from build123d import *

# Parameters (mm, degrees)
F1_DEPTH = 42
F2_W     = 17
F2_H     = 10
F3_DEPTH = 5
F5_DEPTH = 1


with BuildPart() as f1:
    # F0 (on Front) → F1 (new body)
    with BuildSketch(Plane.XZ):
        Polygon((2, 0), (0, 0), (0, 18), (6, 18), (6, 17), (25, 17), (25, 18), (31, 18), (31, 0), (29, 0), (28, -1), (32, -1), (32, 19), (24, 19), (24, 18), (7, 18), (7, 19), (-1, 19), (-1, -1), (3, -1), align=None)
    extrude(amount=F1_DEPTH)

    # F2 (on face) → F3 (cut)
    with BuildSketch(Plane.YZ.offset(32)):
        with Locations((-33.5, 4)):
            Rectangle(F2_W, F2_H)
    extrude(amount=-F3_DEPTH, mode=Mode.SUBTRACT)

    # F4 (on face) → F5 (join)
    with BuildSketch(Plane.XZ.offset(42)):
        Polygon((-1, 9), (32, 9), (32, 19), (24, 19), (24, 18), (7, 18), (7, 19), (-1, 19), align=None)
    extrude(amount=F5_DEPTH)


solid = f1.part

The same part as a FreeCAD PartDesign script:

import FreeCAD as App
import Part
import Sketcher

V = App.Vector
Q = App.Units.Quantity


def add_polygon(sketch, points):
    """Adds a closed chain of lines whose ends are joined by coincident constraints."""
    first, n = sketch.GeometryCount, len(points)
    for a, b in zip(points, points[1:] + points[:1]):
        sketch.addGeometry(Part.LineSegment(App.Vector(*a, 0), App.Vector(*b, 0)), False)
    for i in range(n):
        sketch.addConstraint(Sketcher.Constraint("Coincident", first + i, 2, first + (i + 1) % n, 1))

doc = App.newDocument("Part")
body = doc.addObject("PartDesign::Body", "Body")

sketch1 = body.newObject("Sketcher::SketchObject", "Sketch")
sketch1.AttachmentSupport = (doc.getObject("XZ_Plane"), [""])
sketch1.MapMode = "FlatFace"
add_polygon(sketch1, [(2, 0), (0, 0), (0, 18), (6, 18), (6, 17), (25, 17), (25, 18), (31, 18), (31, 0), (29, 0), (28, -1), (32, -1), (32, 19), (24, 19), (24, 18), (7, 18), (7, 19), (-1, 19), (-1, -1), (3, -1)])
sketch1.addConstraint([
    Sketcher.Constraint("Horizontal", 0),
    Sketcher.Constraint("Vertical", 1),
    Sketcher.Constraint("Horizontal", 2),
    Sketcher.Constraint("Vertical", 3),
    Sketcher.Constraint("Horizontal", 4),
    Sketcher.Constraint("Vertical", 5),
    Sketcher.Constraint("Horizontal", 6),
    Sketcher.Constraint("Vertical", 7),
    Sketcher.Constraint("Horizontal", 8),
    Sketcher.Constraint("Horizontal", 10),
    Sketcher.Constraint("Vertical", 11),
    Sketcher.Constraint("Horizontal", 12),
    Sketcher.Constraint("Vertical", 13),
    Sketcher.Constraint("Horizontal", 14),
    Sketcher.Constraint("Vertical", 15),
    Sketcher.Constraint("Horizontal", 16),
    Sketcher.Constraint("Vertical", 17),
    Sketcher.Constraint("Horizontal", 18),
    Sketcher.Constraint("Coincident", 0, 2, -1, 1),
    Sketcher.Constraint("PointOnObject", 7, 2, -1),
    Sketcher.Constraint("Perpendicular", 9, 19),
    Sketcher.Constraint("Horizontal", 2, 2, 5, 2),
    Sketcher.Constraint("Horizontal", 6, 2, 13, 2),
    Sketcher.Constraint("Horizontal", 12, 2, 15, 2),
    Sketcher.Constraint("Horizontal", 10, 2, 17, 2),
    Sketcher.Constraint("Equal", 2, 6),
    Sketcher.Constraint("Equal", 0, 8),
    Sketcher.Constraint("Equal", 12, 16),
    Sketcher.Constraint("Equal", 10, 18),
    Sketcher.Constraint("Equal", 5, 13),
    Sketcher.Constraint("Equal", 9, 19),
    Sketcher.Constraint("DistanceX", 0, 2, 0, 1, Q("2 mm")),
    Sketcher.Constraint("DistanceX", 2, 1, 2, 2, Q("6 mm")),
    Sketcher.Constraint("DistanceX", 4, 1, 4, 2, Q("19 mm")),
    Sketcher.Constraint("DistanceX", 10, 1, 10, 2, Q("4 mm")),
    Sketcher.Constraint("DistanceX", 12, 2, 12, 1, Q("8 mm")),
    Sketcher.Constraint("DistanceX", 14, 2, 14, 1, Q("17 mm")),
    Sketcher.Constraint("DistanceY", 1, 1, 1, 2, Q("18 mm")),
    Sketcher.Constraint("DistanceY", 3, 2, 3, 1, Q("1 mm")),
])
pad1 = body.newObject("PartDesign::Pad", "Pad")
pad1.Profile = sketch1
pad1.Length = 42

sketch2 = body.newObject("Sketcher::SketchObject", "Sketch001")
sketch2.AttachmentSupport = (doc.getObject("YZ_Plane"), [""])
sketch2.MapMode = "FlatFace"
sketch2.AttachmentOffset = App.Placement(V(0, 0, 32), App.Rotation())
add_polygon(sketch2, [(-42, 9), (-42, -1), (-25, -1), (-25, 9)])
sketch2.addConstraint([
    Sketcher.Constraint("Vertical", 0),
    Sketcher.Constraint("Horizontal", 1),
    Sketcher.Constraint("Vertical", 2),
    Sketcher.Constraint("Horizontal", 3),
    Sketcher.Constraint("DistanceX", 1, 1, 1, 2, Q("17 mm")),
    Sketcher.Constraint("DistanceY", 0, 2, 0, 1, Q("10 mm")),
    Sketcher.Constraint("DistanceX", 0, 2, -1, 1, Q("42 mm")),
    Sketcher.Constraint("DistanceY", 0, 2, -1, 1, Q("1 mm")),
])
pocket1 = body.newObject("PartDesign::Pocket", "Pocket")
pocket1.Profile = sketch2
pocket1.Length = 5

sketch3 = body.newObject("Sketcher::SketchObject", "Sketch002")
sketch3.AttachmentSupport = (doc.getObject("XZ_Plane"), [""])
sketch3.MapMode = "FlatFace"
sketch3.AttachmentOffset = App.Placement(V(0, 0, 42), App.Rotation())
add_polygon(sketch3, [(-1, 9), (32, 9), (32, 19), (24, 19), (24, 18), (7, 18), (7, 19), (-1, 19)])
sketch3.addConstraint([
    Sketcher.Constraint("Horizontal", 0),
    Sketcher.Constraint("Vertical", 1),
    Sketcher.Constraint("Horizontal", 2),
    Sketcher.Constraint("Vertical", 3),
    Sketcher.Constraint("Horizontal", 4),
    Sketcher.Constraint("Vertical", 5),
    Sketcher.Constraint("Horizontal", 6),
    Sketcher.Constraint("Vertical", 7),
    Sketcher.Constraint("Horizontal", 2, 2, 5, 2),
    Sketcher.Constraint("Equal", 2, 6),
    Sketcher.Constraint("DistanceX", 0, 1, 0, 2, Q("33 mm")),
    Sketcher.Constraint("DistanceX", 2, 2, 2, 1, Q("8 mm")),
    Sketcher.Constraint("DistanceY", 1, 1, 1, 2, Q("10 mm")),
    Sketcher.Constraint("DistanceY", 3, 2, 3, 1, Q("1 mm")),
    Sketcher.Constraint("DistanceX", -1, 1, 0, 2, Q("32 mm")),
    Sketcher.Constraint("DistanceY", -1, 1, 0, 2, Q("9 mm")),
])
pad2 = body.newObject("PartDesign::Pad", "Pad001")
pad2.Profile = sketch3
pad2.Length = 1

doc.recompute()
